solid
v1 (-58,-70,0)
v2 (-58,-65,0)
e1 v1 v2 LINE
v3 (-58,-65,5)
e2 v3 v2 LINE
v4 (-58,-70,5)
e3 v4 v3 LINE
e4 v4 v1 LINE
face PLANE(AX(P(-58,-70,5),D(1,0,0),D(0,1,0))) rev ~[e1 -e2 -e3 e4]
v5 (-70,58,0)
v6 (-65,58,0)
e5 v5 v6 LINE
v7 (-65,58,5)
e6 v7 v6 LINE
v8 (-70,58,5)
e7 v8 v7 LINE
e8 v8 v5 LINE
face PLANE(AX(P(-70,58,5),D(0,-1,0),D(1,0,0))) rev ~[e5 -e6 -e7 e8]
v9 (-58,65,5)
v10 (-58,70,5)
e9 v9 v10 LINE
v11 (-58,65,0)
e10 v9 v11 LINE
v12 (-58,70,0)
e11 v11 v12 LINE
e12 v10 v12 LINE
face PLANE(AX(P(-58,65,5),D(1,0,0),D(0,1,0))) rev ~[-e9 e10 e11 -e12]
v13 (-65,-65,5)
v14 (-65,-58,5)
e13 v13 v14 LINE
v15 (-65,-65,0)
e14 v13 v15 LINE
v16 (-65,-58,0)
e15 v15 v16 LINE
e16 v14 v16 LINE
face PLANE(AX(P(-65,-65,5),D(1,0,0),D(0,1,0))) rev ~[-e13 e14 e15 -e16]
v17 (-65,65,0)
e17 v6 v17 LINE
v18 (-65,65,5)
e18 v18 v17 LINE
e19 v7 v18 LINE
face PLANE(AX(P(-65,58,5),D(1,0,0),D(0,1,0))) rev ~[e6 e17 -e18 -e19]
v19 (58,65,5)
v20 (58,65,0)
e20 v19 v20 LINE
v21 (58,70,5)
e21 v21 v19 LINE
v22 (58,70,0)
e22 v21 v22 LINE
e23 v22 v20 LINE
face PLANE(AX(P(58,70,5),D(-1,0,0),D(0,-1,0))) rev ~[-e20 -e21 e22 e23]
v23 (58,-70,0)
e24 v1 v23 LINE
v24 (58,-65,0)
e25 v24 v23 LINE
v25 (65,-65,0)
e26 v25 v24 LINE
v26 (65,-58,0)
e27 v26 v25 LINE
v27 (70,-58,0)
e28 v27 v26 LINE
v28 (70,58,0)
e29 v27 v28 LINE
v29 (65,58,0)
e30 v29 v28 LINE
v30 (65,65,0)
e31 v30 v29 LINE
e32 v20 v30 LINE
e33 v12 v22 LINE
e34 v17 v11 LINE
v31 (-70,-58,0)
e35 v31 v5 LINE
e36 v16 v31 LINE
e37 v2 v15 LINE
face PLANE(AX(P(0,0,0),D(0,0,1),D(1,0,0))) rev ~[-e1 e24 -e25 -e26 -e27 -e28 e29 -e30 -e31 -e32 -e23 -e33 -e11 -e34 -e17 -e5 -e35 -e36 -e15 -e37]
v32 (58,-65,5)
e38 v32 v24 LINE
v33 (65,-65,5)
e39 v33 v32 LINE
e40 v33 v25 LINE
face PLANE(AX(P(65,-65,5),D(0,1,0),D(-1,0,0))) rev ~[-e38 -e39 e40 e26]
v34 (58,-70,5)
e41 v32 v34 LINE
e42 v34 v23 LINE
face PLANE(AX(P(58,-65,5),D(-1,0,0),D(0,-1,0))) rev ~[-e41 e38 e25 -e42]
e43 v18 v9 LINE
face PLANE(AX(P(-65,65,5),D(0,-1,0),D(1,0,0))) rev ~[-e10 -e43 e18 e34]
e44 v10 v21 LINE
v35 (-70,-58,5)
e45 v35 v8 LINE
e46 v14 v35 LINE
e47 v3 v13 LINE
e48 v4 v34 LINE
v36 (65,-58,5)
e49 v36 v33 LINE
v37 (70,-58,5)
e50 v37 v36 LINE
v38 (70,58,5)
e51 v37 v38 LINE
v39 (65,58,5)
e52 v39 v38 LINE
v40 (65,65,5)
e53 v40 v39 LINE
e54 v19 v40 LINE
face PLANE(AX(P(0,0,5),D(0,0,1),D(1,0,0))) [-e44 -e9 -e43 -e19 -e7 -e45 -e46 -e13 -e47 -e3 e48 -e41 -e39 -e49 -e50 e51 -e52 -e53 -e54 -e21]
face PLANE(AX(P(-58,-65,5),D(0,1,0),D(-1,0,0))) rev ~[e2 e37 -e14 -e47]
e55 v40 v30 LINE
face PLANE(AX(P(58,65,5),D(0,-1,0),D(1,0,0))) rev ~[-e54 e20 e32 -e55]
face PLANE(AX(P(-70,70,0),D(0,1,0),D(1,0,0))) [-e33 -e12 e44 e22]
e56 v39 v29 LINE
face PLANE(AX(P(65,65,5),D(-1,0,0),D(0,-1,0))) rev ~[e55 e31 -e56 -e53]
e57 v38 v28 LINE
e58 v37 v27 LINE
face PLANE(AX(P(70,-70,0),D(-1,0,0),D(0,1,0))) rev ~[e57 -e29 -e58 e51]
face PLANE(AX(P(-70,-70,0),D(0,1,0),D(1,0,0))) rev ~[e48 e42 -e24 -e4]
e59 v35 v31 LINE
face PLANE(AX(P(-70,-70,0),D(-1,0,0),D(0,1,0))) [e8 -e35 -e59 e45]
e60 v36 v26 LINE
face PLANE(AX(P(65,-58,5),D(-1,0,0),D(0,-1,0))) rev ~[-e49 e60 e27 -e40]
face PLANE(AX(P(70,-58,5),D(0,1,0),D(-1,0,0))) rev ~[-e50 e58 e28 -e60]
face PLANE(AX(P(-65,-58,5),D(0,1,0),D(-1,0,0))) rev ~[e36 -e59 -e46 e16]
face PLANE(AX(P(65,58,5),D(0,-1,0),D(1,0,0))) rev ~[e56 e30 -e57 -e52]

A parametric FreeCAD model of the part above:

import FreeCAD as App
import Part
import Sketcher
from FreeCAD import Vector
Q = App.Units.Quantity

doc = App.newDocument("Part")
body = doc.addObject("PartDesign::Body", "Body")

sketch1 = body.newObject("Sketcher::SketchObject", "Sketch")
sketch1.AttachmentSupport = (doc.getObject("XY_Plane"), [""])
sketch1.MapMode = "FlatFace"
sketch1.addGeometry(Part.LineSegment(Vector(-70, 70, 0), Vector(-70, -70, 0)), False)
sketch1.addGeometry(Part.LineSegment(Vector(-70, -70, 0), Vector(70, -70, 0)), False)
sketch1.addGeometry(Part.LineSegment(Vector(70, -70, 0), Vector(70, 70, 0)), False)
sketch1.addGeometry(Part.LineSegment(Vector(70, 70, 0), Vector(-70, 70, 0)), False)
sketch1.addConstraint(Sketcher.Constraint("Coincident", 0, 2, 1, 1))
sketch1.addConstraint(Sketcher.Constraint("Coincident", 1, 2, 2, 1))
sketch1.addConstraint(Sketcher.Constraint("Coincident", 2, 2, 3, 1))
sketch1.addConstraint(Sketcher.Constraint("Coincident", 3, 2, 0, 1))
sketch1.addConstraint(Sketcher.Constraint("Vertical", 0))
sketch1.addConstraint(Sketcher.Constraint("Horizontal", 1))
sketch1.addConstraint(Sketcher.Constraint("Vertical", 2))
sketch1.addConstraint(Sketcher.Constraint("Horizontal", 3))
sketch1.addConstraint(Sketcher.Constraint("Symmetric", 0, 2, 2, 2, -1, 1))
sketch1.addConstraint(Sketcher.Constraint("Equal", 3, 0))
sketch1.addConstraint(Sketcher.Constraint("DistanceX", 1, 1, 1, 2, Q("140 mm")))
pad1 = body.newObject("PartDesign::Pad", "Pad")
pad1.Profile = sketch1
pad1.Length = 5

sketch2 = body.newObject("Sketcher::SketchObject", "Sketch001")
sketch2.AttachmentSupport = (doc.getObject("XY_Plane"), [""])
sketch2.MapMode = "FlatFace"
sketch2.AttachmentOffset = App.Placement(Vector(0, 0, 5), App.Rotation())
sketch2.addGeometry(Part.LineSegment(Vector(-70, 70, 0), Vector(-70, 58, 0)), False)
sketch2.addGeometry(Part.LineSegment(Vector(-70, 58, 0), Vector(-65, 58, 0)), False)
sketch2.addGeometry(Part.LineSegment(Vector(-65, 58, 0), Vector(-65, 65, 0)), False)
sketch2.addGeometry(Part.LineSegment(Vector(-65, 65, 0), Vector(-58, 65, 0)), False)
sketch2.addGeometry(Part.LineSegment(Vector(-58, 65, 0), Vector(-58, 70, 0)), False)
sketch2.addGeometry(Part.LineSegment(Vector(-58, 70, 0), Vector(-70, 70, 0)), False)
sketch2.addGeometry(Part.LineSegment(Vector(70, 70, 0), Vector(58, 70, 0)), False)
sketch2.addGeometry(Part.LineSegment(Vector(58, 70, 0), Vector(58, 65, 0)), False)
sketch2.addGeometry(Part.LineSegment(Vector(58, 65, 0), Vector(65, 65, 0)), False)
sketch2.addGeometry(Part.LineSegment(Vector(65, 65, 0), Vector(65, 58, 0)), False)
sketch2.addGeometry(Part.LineSegment(Vector(65, 58, 0), Vector(70, 58, 0)), False)
sketch2.addGeometry(Part.LineSegment(Vector(70, 58, 0), Vector(70, 70, 0)), False)
sketch2.addGeometry(Part.LineSegment(Vector(58, -65, 0), Vector(58, -70, 0)), False)
sketch2.addGeometry(Part.LineSegment(Vector(58, -70, 0), Vector(70, -70, 0)), False)
sketch2.addGeometry(Part.LineSegment(Vector(70, -70, 0), Vector(70, -58, 0)), False)
sketch2.addGeometry(Part.LineSegment(Vector(70, -58, 0), Vector(65, -58, 0)), False)
sketch2.addGeometry(Part.LineSegment(Vector(65, -58, 0), Vector(65, -65, 0)), False)
sketch2.addGeometry(Part.LineSegment(Vector(65, -65, 0), Vector(58, -65, 0)), False)
sketch2.addGeometry(Part.LineSegment(Vector(-65, -58, 0), Vector(-70, -58, 0)), False)
sketch2.addGeometry(Part.LineSegment(Vector(-70, -58, 0), Vector(-70, -70, 0)), False)
sketch2.addGeometry(Part.LineSegment(Vector(-70, -70, 0), Vector(-58, -70, 0)), False)
sketch2.addGeometry(Part.LineSegment(Vector(-58, -70, 0), Vector(-58, -65, 0)), False)
sketch2.addGeometry(Part.LineSegment(Vector(-58, -65, 0), Vector(-65, -65, 0)), False)
sketch2.addGeometry(Part.LineSegment(Vector(-65, -65, 0), Vector(-65, -58, 0)), False)
sketch2.addConstraint(Sketcher.Constraint("Coincident", 0, 2, 1, 1))
sketch2.addConstraint(Sketcher.Constraint("Coincident", 1, 2, 2, 1))
sketch2.addConstraint(Sketcher.Constraint("Coincident", 2, 2, 3, 1))
sketch2.addConstraint(Sketcher.Constraint("Coincident", 3, 2, 4, 1))
sketch2.addConstraint(Sketcher.Constraint("Coincident", 4, 2, 5, 1))
sketch2.addConstraint(Sketcher.Constraint("Coincident", 5, 2, 0, 1))
sketch2.addConstraint(Sketcher.Constraint("Coincident", 6, 2, 7, 1))
sketch2.addConstraint(Sketcher.Constraint("Coincident", 7, 2, 8, 1))
sketch2.addConstraint(Sketcher.Constraint("Coincident", 8, 2, 9, 1))
sketch2.addConstraint(Sketcher.Constraint("Coincident", 9, 2, 10, 1))
sketch2.addConstraint(Sketcher.Constraint("Coincident", 10, 2, 11, 1))
sketch2.addConstraint(Sketcher.Constraint("Coincident", 11, 2, 6, 1))
sketch2.addConstraint(Sketcher.Constraint("Coincident", 12, 2, 13, 1))
sketch2.addConstraint(Sketcher.Constraint("Coincident", 13, 2, 14, 1))
sketch2.addConstraint(Sketcher.Constraint("Coincident", 14, 2, 15, 1))
sketch2.addConstraint(Sketcher.Constraint("Coincident", 15, 2, 16, 1))
sketch2.addConstraint(Sketcher.Constraint("Coincident", 16, 2, 17, 1))
sketch2.addConstraint(Sketcher.Constraint("Coincident", 17, 2, 12, 1))
sketch2.addConstraint(Sketcher.Constraint("Coincident", 18, 2, 19, 1))
sketch2.addConstraint(Sketcher.Constraint("Coincident", 19, 2, 20, 1))
sketch2.addConstraint(Sketcher.Constraint("Coincident", 20, 2, 21, 1))
sketch2.addConstraint(Sketcher.Constraint("Coincident", 21, 2, 22, 1))
sketch2.addConstraint(Sketcher.Constraint("Coincident", 22, 2, 23, 1))
sketch2.addConstraint(Sketcher.Constraint("Coincident", 23, 2, 18, 1))
sketch2.addConstraint(Sketcher.Constraint("Vertical", 0))
sketch2.addConstraint(Sketcher.Constraint("Horizontal", 1))
sketch2.addConstraint(Sketcher.Constraint("Vertical", 2))
sketch2.addConstraint(Sketcher.Constraint("Horizontal", 3))
sketch2.addConstraint(Sketcher.Constraint("Vertical", 4))
sketch2.addConstraint(Sketcher.Constraint("Horizontal", 5))
sketch2.addConstraint(Sketcher.Constraint("Horizontal", 6))
sketch2.addConstraint(Sketcher.Constraint("Vertical", 7))
sketch2.addConstraint(Sketcher.Constraint("Horizontal", 8))
sketch2.addConstraint(Sketcher.Constraint("Vertical", 9))
sketch2.addConstraint(Sketcher.Constraint("Horizontal", 10))
sketch2.addConstraint(Sketcher.Constraint("Vertical", 11))
sketch2.addConstraint(Sketcher.Constraint("Vertical", 12))
sketch2.addConstraint(Sketcher.Constraint("Horizontal", 13))
sketch2.addConstraint(Sketcher.Constraint("Vertical", 14))
sketch2.addConstraint(Sketcher.Constraint("Horizontal", 15))
sketch2.addConstraint(Sketcher.Constraint("Vertical", 16))
sketch2.addConstraint(Sketcher.Constraint("Horizontal", 17))
sketch2.addConstraint(Sketcher.Constraint("Horizontal", 18))
sketch2.addConstraint(Sketcher.Constraint("Vertical", 19))
sketch2.addConstraint(Sketcher.Constraint("Horizontal", 20))
sketch2.addConstraint(Sketcher.Constraint("Vertical", 21))
sketch2.addConstraint(Sketcher.Constraint("Horizontal", 22))
sketch2.addConstraint(Sketcher.Constraint("Vertical", 23))
sketch2.addConstraint(Sketcher.Constraint("Symmetric", 4, 2, 12, 2, -1, 1))
sketch2.addConstraint(Sketcher.Constraint("Symmetric", 0, 2, 14, 2, -1, 1))
sketch2.addConstraint(Sketcher.Constraint("Symmetric", 2, 2, 16, 2, -1, 1))
sketch2.addConstraint(Sketcher.Constraint("Symmetric", 10, 2, 18, 2, -1, 1))
sketch2.addConstraint(Sketcher.Constraint("Symmetric", 6, 2, 20, 2, -1, 1))
sketch2.addConstraint(Sketcher.Constraint("Symmetric", 8, 2, 22, 2, -1, 1))
sketch2.addConstraint(Sketcher.Constraint("Symmetric", 4, 2, 6, 2, -2))
sketch2.addConstraint(Sketcher.Constraint("Symmetric", 2, 2, 8, 2, -2))
sketch2.addConstraint(Sketcher.Constraint("Symmetric", 0, 2, 10, 2, -2))
sketch2.addConstraint(Sketcher.Constraint("Equal", 20, 0))
sketch2.addConstraint(Sketcher.Constraint("Equal", 22, 2))
sketch2.addConstraint(Sketcher.Constraint("DistanceX", 1, 1, 1, 2, Q("5 mm")))
sketch2.addConstraint(Sketcher.Constraint("DistanceX", 3, 1, 3, 2, Q("7 mm")))
sketch2.addConstraint(Sketcher.Constraint("DistanceX", 0, 2, -1, 1, Q("70 mm")))
sketch2.addConstraint(Sketcher.Constraint("DistanceY", -1, 1, 0, 2, Q("58 mm")))
pocket1 = body.newObject("PartDesign::Pocket", "Pocket")
pocket1.Profile = sketch2
pocket1.Type = "ThroughAll"

doc.recompute()
